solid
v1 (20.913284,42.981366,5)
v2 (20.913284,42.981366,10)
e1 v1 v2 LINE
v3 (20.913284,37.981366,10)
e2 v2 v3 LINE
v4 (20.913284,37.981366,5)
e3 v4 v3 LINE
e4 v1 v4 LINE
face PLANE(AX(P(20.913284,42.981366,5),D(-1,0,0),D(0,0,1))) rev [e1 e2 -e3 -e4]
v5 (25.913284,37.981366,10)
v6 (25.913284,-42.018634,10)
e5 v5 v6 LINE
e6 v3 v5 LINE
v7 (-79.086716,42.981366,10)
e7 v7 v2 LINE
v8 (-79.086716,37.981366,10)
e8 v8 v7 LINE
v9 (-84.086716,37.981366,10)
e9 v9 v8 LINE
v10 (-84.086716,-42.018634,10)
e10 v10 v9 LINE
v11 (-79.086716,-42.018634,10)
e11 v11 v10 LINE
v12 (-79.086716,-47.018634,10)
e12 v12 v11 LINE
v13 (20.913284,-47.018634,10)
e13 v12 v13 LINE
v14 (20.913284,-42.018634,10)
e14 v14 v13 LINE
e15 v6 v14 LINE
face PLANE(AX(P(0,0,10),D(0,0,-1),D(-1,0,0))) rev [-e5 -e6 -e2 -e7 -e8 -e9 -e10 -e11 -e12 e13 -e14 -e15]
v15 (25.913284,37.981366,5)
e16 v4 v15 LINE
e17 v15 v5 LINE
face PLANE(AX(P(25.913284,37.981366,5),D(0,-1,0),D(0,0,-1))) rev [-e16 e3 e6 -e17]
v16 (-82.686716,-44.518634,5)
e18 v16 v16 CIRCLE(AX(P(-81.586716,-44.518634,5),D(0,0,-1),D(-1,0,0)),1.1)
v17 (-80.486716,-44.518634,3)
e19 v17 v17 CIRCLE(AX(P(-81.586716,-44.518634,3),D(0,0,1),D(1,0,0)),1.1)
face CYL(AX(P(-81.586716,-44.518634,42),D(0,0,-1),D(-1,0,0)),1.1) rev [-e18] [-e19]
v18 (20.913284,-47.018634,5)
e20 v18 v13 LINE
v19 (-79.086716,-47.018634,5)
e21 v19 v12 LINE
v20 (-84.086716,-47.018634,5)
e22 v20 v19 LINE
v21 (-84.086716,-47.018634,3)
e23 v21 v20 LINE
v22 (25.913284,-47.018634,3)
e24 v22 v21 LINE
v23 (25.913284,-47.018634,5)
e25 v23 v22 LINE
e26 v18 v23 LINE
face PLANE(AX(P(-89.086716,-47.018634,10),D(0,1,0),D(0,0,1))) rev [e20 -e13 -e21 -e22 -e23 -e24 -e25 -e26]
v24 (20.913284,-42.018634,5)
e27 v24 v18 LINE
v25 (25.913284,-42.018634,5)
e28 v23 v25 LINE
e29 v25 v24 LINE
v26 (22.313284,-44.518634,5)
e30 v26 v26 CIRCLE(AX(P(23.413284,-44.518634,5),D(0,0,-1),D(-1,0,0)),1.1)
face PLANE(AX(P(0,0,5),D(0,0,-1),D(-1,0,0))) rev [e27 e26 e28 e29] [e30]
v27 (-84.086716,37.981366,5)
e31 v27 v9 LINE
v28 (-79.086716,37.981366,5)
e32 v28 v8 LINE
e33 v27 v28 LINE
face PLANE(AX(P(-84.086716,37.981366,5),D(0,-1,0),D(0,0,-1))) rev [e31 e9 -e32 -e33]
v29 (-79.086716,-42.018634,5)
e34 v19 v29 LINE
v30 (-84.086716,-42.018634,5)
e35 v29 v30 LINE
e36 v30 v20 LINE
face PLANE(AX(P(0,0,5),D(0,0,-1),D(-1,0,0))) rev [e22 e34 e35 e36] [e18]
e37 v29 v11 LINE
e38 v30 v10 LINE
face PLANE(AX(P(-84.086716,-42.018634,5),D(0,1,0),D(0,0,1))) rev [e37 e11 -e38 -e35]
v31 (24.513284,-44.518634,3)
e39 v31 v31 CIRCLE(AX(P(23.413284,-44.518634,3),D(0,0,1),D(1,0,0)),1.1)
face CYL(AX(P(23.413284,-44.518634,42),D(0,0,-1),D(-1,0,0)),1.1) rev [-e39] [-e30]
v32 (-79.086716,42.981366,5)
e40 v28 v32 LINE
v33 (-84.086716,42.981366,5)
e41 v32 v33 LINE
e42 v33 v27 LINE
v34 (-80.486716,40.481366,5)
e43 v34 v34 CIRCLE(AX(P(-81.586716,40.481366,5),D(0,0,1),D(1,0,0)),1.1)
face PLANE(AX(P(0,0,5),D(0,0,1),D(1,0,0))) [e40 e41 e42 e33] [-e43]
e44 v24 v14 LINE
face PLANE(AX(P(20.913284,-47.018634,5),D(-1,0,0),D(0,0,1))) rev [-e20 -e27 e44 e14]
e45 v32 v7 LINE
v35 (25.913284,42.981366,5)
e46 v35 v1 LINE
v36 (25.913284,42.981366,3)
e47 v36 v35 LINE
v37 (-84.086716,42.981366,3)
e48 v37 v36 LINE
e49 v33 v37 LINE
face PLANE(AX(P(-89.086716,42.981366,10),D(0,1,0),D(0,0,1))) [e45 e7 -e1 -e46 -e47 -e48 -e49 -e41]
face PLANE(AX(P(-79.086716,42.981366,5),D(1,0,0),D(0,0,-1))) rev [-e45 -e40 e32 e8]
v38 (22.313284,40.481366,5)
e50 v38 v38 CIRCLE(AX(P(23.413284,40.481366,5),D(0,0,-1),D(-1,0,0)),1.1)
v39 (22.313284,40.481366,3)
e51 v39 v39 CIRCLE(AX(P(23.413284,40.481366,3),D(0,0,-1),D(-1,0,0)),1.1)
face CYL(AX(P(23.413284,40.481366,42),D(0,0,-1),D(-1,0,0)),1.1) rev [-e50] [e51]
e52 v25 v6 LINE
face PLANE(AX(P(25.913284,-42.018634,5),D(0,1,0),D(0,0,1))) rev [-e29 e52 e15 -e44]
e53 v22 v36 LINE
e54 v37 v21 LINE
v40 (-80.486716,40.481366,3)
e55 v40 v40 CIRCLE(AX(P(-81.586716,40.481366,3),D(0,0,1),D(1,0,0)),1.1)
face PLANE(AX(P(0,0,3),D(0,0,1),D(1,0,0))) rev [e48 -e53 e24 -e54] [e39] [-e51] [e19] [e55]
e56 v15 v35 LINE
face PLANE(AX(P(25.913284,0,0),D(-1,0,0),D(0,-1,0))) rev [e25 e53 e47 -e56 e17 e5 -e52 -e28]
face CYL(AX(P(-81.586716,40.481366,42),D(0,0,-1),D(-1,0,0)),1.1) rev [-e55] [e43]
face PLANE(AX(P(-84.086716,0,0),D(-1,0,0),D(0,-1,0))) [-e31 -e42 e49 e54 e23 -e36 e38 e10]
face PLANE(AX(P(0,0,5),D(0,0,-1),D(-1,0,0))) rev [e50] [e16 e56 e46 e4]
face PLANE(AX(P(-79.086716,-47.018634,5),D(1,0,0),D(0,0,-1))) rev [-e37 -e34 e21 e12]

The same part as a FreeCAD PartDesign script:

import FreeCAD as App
import Part
import Sketcher
from FreeCAD import Vector
Q = App.Units.Quantity

doc = App.newDocument("Part")
body = doc.addObject("PartDesign::Body", "Body")

# Sketch on XY plane
sketch1 = body.newObject("Sketcher::SketchObject", "Sketch")
sketch1.AttachmentSupport = (doc.getObject("XY_Plane"), [""])
sketch1.MapMode = "FlatFace"
sketch1.addGeometry([
    Part.LineSegment(Vector(-89.086716, 42.981366, 0), Vector(-89.086716, -47.018634, 0)),
    Part.LineSegment(Vector(-89.086716, -47.018634, 0), Vector(30.913284, -47.018634, 0)),
    Part.LineSegment(Vector(30.913284, -47.018634, 0), Vector(30.913284, 42.981366, 0)),
    Part.LineSegment(Vector(30.913284, 42.981366, 0), Vector(-89.086716, 42.981366, 0)),
], False)
sketch1.addConstraint([
    Sketcher.Constraint("Coincident", 0, 2, 1, 1),
    Sketcher.Constraint("Coincident", 1, 2, 2, 1),
    Sketcher.Constraint("Coincident", 2, 2, 3, 1),
    Sketcher.Constraint("Coincident", 3, 2, 0, 1),
    Sketcher.Constraint("Vertical", 0),
    Sketcher.Constraint("Horizontal", 1),
    Sketcher.Constraint("Vertical", 2),
    Sketcher.Constraint("Horizontal", 3),
    Sketcher.Constraint("DistanceX", 1, 1, 1, 2, Q("120 mm")),
    Sketcher.Constraint("DistanceY", 0, 2, 0, 1, Q("90 mm")),
    Sketcher.Constraint("DistanceX", 0, 2, -1, 1, Q("89.086716 mm")),
    Sketcher.Constraint("DistanceY", 0, 2, -1, 1, Q("47.018634 mm")),
])
pad1 = body.newObject("PartDesign::Pad", "Pad")
pad1.Profile = sketch1
pad1.Length = 10

# Sketch on XY plane
sketch2 = body.newObject("Sketcher::SketchObject", "Sketch001")
sketch2.AttachmentSupport = (doc.getObject("XY_Plane"), [""])
sketch2.MapMode = "FlatFace"
sketch2.AttachmentOffset = App.Placement(Vector(0, 0, 10), App.Rotation())
sketch2.addGeometry([
    Part.LineSegment(Vector(20.913284, 42.981366, 0), Vector(20.913284, 37.981366, 0)),  # 0
    Part.LineSegment(Vector(20.913284, 37.981366, 0), Vector(25.913284, 37.981366, 0)),  # 1
    Part.LineSegment(Vector(25.913284, 37.981366, 0), Vector(25.913284, 42.981366, 0)),  # 2
    Part.LineSegment(Vector(25.913284, 42.981366, 0), Vector(20.913284, 42.981366, 0)),  # 3
    Part.LineSegment(Vector(-84.086716, 42.981366, 0), Vector(-84.086716, 37.981366, 0)),  # 4
    Part.LineSegment(Vector(-84.086716, 37.981366, 0), Vector(-79.086716, 37.981366, 0)),  # 5
    Part.LineSegment(Vector(-79.086716, 37.981366, 0), Vector(-79.086716, 42.981366, 0)),  # 6
    Part.LineSegment(Vector(-79.086716, 42.981366, 0), Vector(-84.086716, 42.981366, 0)),  # 7
    Part.LineSegment(Vector(-84.086716, -42.018634, 0), Vector(-84.086716, -47.018634, 0)),  # 8
    Part.LineSegment(Vector(-84.086716, -47.018634, 0), Vector(-79.086716, -47.018634, 0)),  # 9
    Part.LineSegment(Vector(-79.086716, -47.018634, 0), Vector(-79.086716, -42.018634, 0)),  # 10
    Part.LineSegment(Vector(-79.086716, -42.018634, 0), Vector(-84.086716, -42.018634, 0)),  # 11
    Part.LineSegment(Vector(20.913284, -42.018634, 0), Vector(20.913284, -47.018634, 0)),  # 12
    Part.LineSegment(Vector(20.913284, -47.018634, 0), Vector(25.913284, -47.018634, 0)),  # 13
    Part.LineSegment(Vector(25.913284, -47.018634, 0), Vector(25.913284, -42.018634, 0)),  # 14
    Part.LineSegment(Vector(25.913284, -42.018634, 0), Vector(20.913284, -42.018634, 0)),  # 15
], False)
sketch2.addConstraint([
    Sketcher.Constraint("Coincident", 0, 2, 1, 1),
    Sketcher.Constraint("Coincident", 1, 2, 2, 1),
    Sketcher.Constraint("Coincident", 2, 2, 3, 1),
    Sketcher.Constraint("Coincident", 3, 2, 0, 1),
    Sketcher.Constraint("Coincident", 4, 2, 5, 1),
    Sketcher.Constraint("Coincident", 5, 2, 6, 1),
    Sketcher.Constraint("Coincident", 6, 2, 7, 1),
    Sketcher.Constraint("Coincident", 7, 2, 4, 1),
    Sketcher.Constraint("Coincident", 8, 2, 9, 1),
    Sketcher.Constraint("Coincident", 9, 2, 10, 1),
    Sketcher.Constraint("Coincident", 10, 2, 11, 1),
    Sketcher.Constraint("Coincident", 11, 2, 8, 1),
    Sketcher.Constraint("Coincident", 12, 2, 13, 1),
    Sketcher.Constraint("Coincident", 13, 2, 14, 1),
    Sketcher.Constraint("Coincident", 14, 2, 15, 1),
    Sketcher.Constraint("Coincident", 15, 2, 12, 1),
    Sketcher.Constraint("Vertical", 0),
    Sketcher.Constraint("Horizontal", 1),
    Sketcher.Constraint("Vertical", 2),
    Sketcher.Constraint("Horizontal", 3),
    Sketcher.Constraint("Vertical", 4),
    Sketcher.Constraint("Horizontal", 5),
    Sketcher.Constraint("Vertical", 6),
    Sketcher.Constraint("Horizontal", 7),
    Sketcher.Constraint("Vertical", 8),
    Sketcher.Constraint("Horizontal", 9),
    Sketcher.Constraint("Vertical", 10),
    Sketcher.Constraint("Horizontal", 11),
    Sketcher.Constraint("Vertical", 12),
    Sketcher.Constraint("Horizontal", 13),
    Sketcher.Constraint("Vertical", 14),
    Sketcher.Constraint("Horizontal", 15),
    Sketcher.Constraint("Horizontal", 1, 2, 4, 2),
    Sketcher.Constraint("Horizontal", 3, 2, 6, 2),
    Sketcher.Constraint("Horizontal", 9, 2, 12, 2),
    Sketcher.Constraint("Horizontal", 11, 2, 14, 2),
    Sketcher.Constraint("Vertical", 7, 2, 8, 2),
    Sketcher.Constraint("Vertical", 6, 2, 9, 2),
    Sketcher.Constraint("Vertical", 3, 2, 12, 2),
    Sketcher.Constraint("Vertical", 2, 2, 13, 2),
    Sketcher.Constraint("Equal", 3, 5),
    Sketcher.Constraint("Equal", 15, 0),
    Sketcher.Constraint("Equal", 6, 8),
    Sketcher.Constraint("DistanceX", 1, 1, 1, 2, Q("5 mm")),
    Sketcher.Constraint("DistanceX", 4, 2, 0, 2, Q("105 mm")),
    Sketcher.Constraint("DistanceY", 8, 2, 4, 2, Q("85 mm")),
    Sketcher.Constraint("DistanceX", -1, 1, 0, 2, Q("20.913284 mm")),
    Sketcher.Constraint("DistanceY", -1, 1, 0, 2, Q("37.981366 mm")),
])
pocket1 = body.newObject("PartDesign::Pocket", "Pocket")
pocket1.Profile = sketch2
pocket1.Length = 5

# Sketch on XY plane
sketch3 = body.newObject("Sketcher::SketchObject", "Sketch002")
sketch3.AttachmentSupport = (doc.getObject("XY_Plane"), [""])
sketch3.MapMode = "FlatFace"
sketch3.addGeometry([
    Part.LineSegment(Vector(-79.086716, 42.981366, 0), Vector(-79.086716, 37.981366, 0)),  # 0
    Part.LineSegment(Vector(-79.086716, 37.981366, 0), Vector(-84.086716, 37.981366, 0)),  # 1
    Part.LineSegment(Vector(-84.086716, 37.981366, 0), Vector(-84.086716, 42.981366, 0)),  # 2
    Part.LineSegment(Vector(-84.086716, 42.981366, 0), Vector(-79.086716, 42.981366, 0)),  # 3
    Part.LineSegment(Vector(25.913284, 42.981366, 0), Vector(25.913284, 37.981366, 0)),  # 4
    Part.LineSegment(Vector(25.913284, 37.981366, 0), Vector(20.913284, 37.981366, 0)),  # 5
    Part.LineSegment(Vector(20.913284, 37.981366, 0), Vector(20.913284, 42.981366, 0)),  # 6
    Part.LineSegment(Vector(20.913284, 42.981366, 0), Vector(25.913284, 42.981366, 0)),  # 7
    Part.LineSegment(Vector(-79.086716, -42.018634, 0), Vector(-79.086716, -47.018634, 0)),  # 8
    Part.LineSegment(Vector(-79.086716, -47.018634, 0), Vector(-84.086716, -47.018634, 0)),  # 9
    Part.LineSegment(Vector(-84.086716, -47.018634, 0), Vector(-84.086716, -42.018634, 0)),  # 10
    Part.LineSegment(Vector(-84.086716, -42.018634, 0), Vector(-79.086716, -42.018634, 0)),  # 11
    Part.LineSegment(Vector(25.913284, -42.018634, 0), Vector(25.913284, -47.018634, 0)),  # 12
    Part.LineSegment(Vector(25.913284, -47.018634, 0), Vector(20.913284, -47.018634, 0)),  # 13
    Part.LineSegment(Vector(20.913284, -47.018634, 0), Vector(20.913284, -42.018634, 0)),  # 14
    Part.LineSegment(Vector(20.913284, -42.018634, 0), Vector(25.913284, -42.018634, 0)),  # 15
], False)
sketch3.addConstraint([
    Sketcher.Constraint("Coincident", 0, 2, 1, 1),
    Sketcher.Constraint("Coincident", 1, 2, 2, 1),
    Sketcher.Constraint("Coincident", 2, 2, 3, 1),
    Sketcher.Constraint("Coincident", 3, 2, 0, 1),
    Sketcher.Constraint("Coincident", 4, 2, 5, 1),
    Sketcher.Constraint("Coincident", 5, 2, 6, 1),
    Sketcher.Constraint("Coincident", 6, 2, 7, 1),
    Sketcher.Constraint("Coincident", 7, 2, 4, 1),
    Sketcher.Constraint("Coincident", 8, 2, 9, 1),
    Sketcher.Constraint("Coincident", 9, 2, 10, 1),
    Sketcher.Constraint("Coincident", 10, 2, 11, 1),
    Sketcher.Constraint("Coincident", 11, 2, 8, 1),
    Sketcher.Constraint("Coincident", 12, 2, 13, 1),
    Sketcher.Constraint("Coincident", 13, 2, 14, 1),
    Sketcher.Constraint("Coincident", 14, 2, 15, 1),
    Sketcher.Constraint("Coincident", 15, 2, 12, 1),
    Sketcher.Constraint("Vertical", 0),
    Sketcher.Constraint("Horizontal", 1),
    Sketcher.Constraint("Vertical", 2),
    Sketcher.Constraint("Horizontal", 3),
    Sketcher.Constraint("Vertical", 4),
    Sketcher.Constraint("Horizontal", 5),
    Sketcher.Constraint("Vertical", 6),
    Sketcher.Constraint("Horizontal", 7),
    Sketcher.Constraint("Vertical", 8),
    Sketcher.Constraint("Horizontal", 9),
    Sketcher.Constraint("Vertical", 10),
    Sketcher.Constraint("Horizontal", 11),
    Sketcher.Constraint("Vertical", 12),
    Sketcher.Constraint("Horizontal", 13),
    Sketcher.Constraint("Vertical", 14),
    Sketcher.Constraint("Horizontal", 15),
    Sketcher.Constraint("Horizontal", 1, 2, 4, 2),
    Sketcher.Constraint("Horizontal", 3, 2, 6, 2),
    Sketcher.Constraint("Horizontal", 9, 2, 12, 2),
    Sketcher.Constraint("Horizontal", 11, 2, 14, 2),
    Sketcher.Constraint("Vertical", 3, 2, 8, 2),
    Sketcher.Constraint("Vertical", 2, 2, 9, 2),
    Sketcher.Constraint("Vertical", 7, 2, 12, 2),
    Sketcher.Constraint("Vertical", 6, 2, 13, 2),
    Sketcher.Constraint("Equal", 3, 5),
    Sketcher.Constraint("Equal", 15, 0),
    Sketcher.Constraint("Equal", 6, 8),
    Sketcher.Constraint("DistanceX", 1, 2, 1, 1, Q("5 mm")),
    Sketcher.Constraint("DistanceX", 0, 2, 4, 2, Q("105 mm")),
    Sketcher.Constraint("DistanceY", 8, 2, 0, 2, Q("85 mm")),
    Sketcher.Constraint("DistanceX", 0, 2, -1, 1, Q("79.086716 mm")),
    Sketcher.Constraint("DistanceY", -1, 1, 0, 2, Q("37.981366 mm")),
])
pocket2 = body.newObject("PartDesign::Pocket", "Pocket001")
pocket2.Profile = sketch3
pocket2.Length = 3
pocket2.Reversed = True

# Sketch on XY plane
sketch4 = body.newObject("Sketcher::SketchObject", "Sketch003")
sketch4.AttachmentSupport = (doc.getObject("XY_Plane"), [""])
sketch4.MapMode = "FlatFace"
sketch4.addGeometry([
    Part.Circle(Vector(23.413284, 40.481366, 0), Vector(0, 0, 1), 1.1),
    Part.Circle(Vector(-81.586716, 40.481366, 0), Vector(0, 0, 1), 1.1),
    Part.Circle(Vector(-81.586716, -44.518634, 0), Vector(0, 0, 1), 1.1),
    Part.Circle(Vector(23.413284, -44.518634, 0), Vector(0, 0, 1), 1.1),
], False)
sketch4.addConstraint([
    Sketcher.Constraint("Equal", 0, 1),
    Sketcher.Constraint("Equal", 1, 2),
    Sketcher.Constraint("Equal", 2, 3),
    Sketcher.Constraint("Horizontal", 0, 3, 1, 3),
    Sketcher.Constraint("Horizontal", 2, 3, 3, 3),
    Sketcher.Constraint("Vertical", 1, 3, 2, 3),
    Sketcher.Constraint("Vertical", 0, 3, 3, 3),
    Sketcher.Constraint("Diameter", 0, Q("2.2 mm")),
    Sketcher.Constraint("DistanceX", 1, 3, 0, 3, Q("105 mm")),
    Sketcher.Constraint("DistanceY", 2, 3, 1, 3, Q("85 mm")),
    Sketcher.Constraint("DistanceX", -1, 1, 0, 3, Q("23.413284 mm")),
    Sketcher.Constraint("DistanceY", -1, 1, 0, 3, Q("40.481366 mm")),
])
pocket3 = body.newObject("PartDesign::Pocket", "Pocket002")
pocket3.Profile = sketch4
pocket3.Length = 42
pocket3.Reversed = True

# Sketch on XY plane
sketch5 = body.newObject("Sketcher::SketchObject", "Sketch004")
sketch5.AttachmentSupport = (doc.getObject("XY_Plane"), [""])
sketch5.MapMode = "FlatFace"
sketch5.addGeometry([
    Part.LineSegment(Vector(-89.086716, 42.981366, 0), Vector(-89.086716, -47.018634, 0)),
    Part.LineSegment(Vector(-89.086716, -47.018634, 0), Vector(30.913284, -47.018634, 0)),
    Part.LineSegment(Vector(30.913284, -47.018634, 0), Vector(30.913284, 42.981366, 0)),
    Part.LineSegment(Vector(30.913284, 42.981366, 0), Vector(-89.086716, 42.981366, 0)),
], False)
sketch5.addConstraint([
    Sketcher.Constraint("Coincident", 0, 2, 1, 1),
    Sketcher.Constraint("Coincident", 1, 2, 2, 1),
    Sketcher.Constraint("Coincident", 2, 2, 3, 1),
    Sketcher.Constraint("Coincident", 3, 2, 0, 1),
    Sketcher.Constraint("Vertical", 0),
    Sketcher.Constraint("Horizontal", 1),
    Sketcher.Constraint("Vertical", 2),
    Sketcher.Constraint("Horizontal", 3),
    Sketcher.Constraint("DistanceX", 1, 1, 1, 2, Q("120 mm")),
    Sketcher.Constraint("DistanceY", 0, 2, 0, 1, Q("90 mm")),
    Sketcher.Constraint("DistanceX", 0, 2, -1, 1, Q("89.086716 mm")),
    Sketcher.Constraint("DistanceY", 0, 2, -1, 1, Q("47.018634 mm")),
])
pocket4 = body.newObject("PartDesign::Pocket", "Pocket003")
pocket4.Profile = sketch5
pocket4.Length = 3
pocket4.Reversed = True

# Sketch on YZ plane
sketch6 = body.newObject("Sketcher::SketchObject", "Sketch005")
sketch6.AttachmentSupport = (doc.getObject("YZ_Plane"), [""])
sketch6.MapMode = "FlatFace"
sketch6.AttachmentOffset = App.Placement(Vector(0, 0, 30.913284), App.Rotation())
sketch6.addGeometry([
    Part.LineSegment(Vector(42.981366, 10, 0), Vector(-47.018634, 10, 0)),
    Part.LineSegment(Vector(-47.018634, 10, 0), Vector(-47.018634, 3, 0)),
    Part.LineSegment(Vector(-47.018634, 3, 0), Vector(42.981366, 3, 0)),
    Part.LineSegment(Vector(42.981366, 3, 0), Vector(42.981366, 10, 0)),
], False)
sketch6.addConstraint([
    Sketcher.Constraint("Coincident", 0, 2, 1, 1),
    Sketcher.Constraint("Coincident", 1, 2, 2, 1),
    Sketcher.Constraint("Coincident", 2, 2, 3, 1),
    Sketcher.Constraint("Coincident", 3, 2, 0, 1),
    Sketcher.Constraint("Horizontal", 0),
    Sketcher.Constraint("Vertical", 1),
    Sketcher.Constraint("Horizontal", 2),
    Sketcher.Constraint("Vertical", 3),
    Sketcher.Constraint("DistanceX", 0, 2, 0, 1, Q("90 mm")),
    Sketcher.Constraint("DistanceY", 1, 2, 1, 1, Q("7 mm")),
    Sketcher.Constraint("DistanceY", -1, 1, 0, 2, Q("10 mm")),
    Sketcher.Constraint("DistanceX", 0, 2, -1, 1, Q("47.018634 mm")),
])
pocket5 = body.newObject("PartDesign::Pocket", "Pocket004")
pocket5.Profile = sketch6
pocket5.Length = 5

# Sketch on YZ plane
sketch7 = body.newObject("Sketcher::SketchObject", "Sketch006")
sketch7.AttachmentSupport = (doc.getObject("YZ_Plane"), [""])
sketch7.MapMode = "FlatFace"
sketch7.AttachmentOffset = App.Placement(Vector(0, 0, -89.086716), App.Rotation())
sketch7.addGeometry([
    Part.LineSegment(Vector(42.981366, 3, 0), Vector(-47.018634, 3, 0)),
    Part.LineSegment(Vector(-47.018634, 3, 0), Vector(-47.018634, 10, 0)),
    Part.LineSegment(Vector(-47.018634, 10, 0), Vector(42.981366, 10, 0)),
    Part.LineSegment(Vector(42.981366, 10, 0), Vector(42.981366, 3, 0)),
], False)
sketch7.addConstraint([
    Sketcher.Constraint("Coincident", 0, 2, 1, 1),
    Sketcher.Constraint("Coincident", 1, 2, 2, 1),
    Sketcher.Constraint("Coincident", 2, 2, 3, 1),
    Sketcher.Constraint("Coincident", 3, 2, 0, 1),
    Sketcher.Constraint("Horizontal", 0),
    Sketcher.Constraint("Vertical", 1),
    Sketcher.Constraint("Horizontal", 2),
    Sketcher.Constraint("Vertical", 3),
    Sketcher.Constraint("DistanceX", 0, 2, 0, 1, Q("90 mm")),
    Sketcher.Constraint("DistanceY", 1, 1, 1, 2, Q("7 mm")),
    Sketcher.Constraint("DistanceY", -1, 1, 0, 2, Q("3 mm")),
    Sketcher.Constraint("DistanceX", 0, 2, -1, 1, Q("47.018634 mm")),
])
pocket6 = body.newObject("PartDesign::Pocket", "Pocket005")
pocket6.Profile = sketch7
pocket6.Length = 5
pocket6.Reversed = True

doc.recompute()
